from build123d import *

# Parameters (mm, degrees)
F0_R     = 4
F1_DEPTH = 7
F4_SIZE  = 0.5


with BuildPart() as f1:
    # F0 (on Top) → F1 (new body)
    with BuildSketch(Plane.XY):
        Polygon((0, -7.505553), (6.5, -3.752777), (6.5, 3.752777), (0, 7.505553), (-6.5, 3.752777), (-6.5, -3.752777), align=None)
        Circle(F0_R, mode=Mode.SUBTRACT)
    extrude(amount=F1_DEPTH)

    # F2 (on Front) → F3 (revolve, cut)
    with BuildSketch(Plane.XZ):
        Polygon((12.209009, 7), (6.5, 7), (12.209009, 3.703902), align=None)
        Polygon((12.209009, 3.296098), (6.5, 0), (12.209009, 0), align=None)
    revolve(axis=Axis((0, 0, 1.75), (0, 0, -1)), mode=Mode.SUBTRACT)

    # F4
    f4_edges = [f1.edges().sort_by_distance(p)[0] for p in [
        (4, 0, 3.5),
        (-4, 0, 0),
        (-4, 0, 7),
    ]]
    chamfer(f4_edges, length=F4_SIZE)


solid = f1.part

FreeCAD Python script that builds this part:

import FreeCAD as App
import Part
import Sketcher
Q = App.Units.Quantity


def edges_at(feature, points):
    """Names of the edges that pass closest to the given points."""
    edges = feature.Shape.Edges
    near = lambda p: min(range(len(edges)), key=lambda i: edges[i].distToShape(Part.Vertex(*p))[0])
    return sorted({f"Edge{near(p) + 1}" for p in points})


def add_polygon(sketch, points):
    """Adds a closed chain of lines whose ends are joined by coincident constraints."""
    first, n = sketch.GeometryCount, len(points)
    for a, b in zip(points, points[1:] + points[:1]):
        sketch.addGeometry(Part.LineSegment(App.Vector(*a, 0), App.Vector(*b, 0)), False)
    for i in range(n):
        sketch.addConstraint(Sketcher.Constraint("Coincident", first + i, 2, first + (i + 1) % n, 1))

doc = App.newDocument("Part")
body = doc.addObject("PartDesign::Body", "Body")

sketch1 = doc.addObject("Sketcher::SketchObject", "Sketch")
body.addObject(sketch1)
sketch1.AttachmentSupport = (doc.XY_Plane, [""])
sketch1.MapMode = "FlatFace"
add_polygon(sketch1, [(0, -7.5), (6.5, -3.8), (6.5, 3.8), (0, 7.5), (-6.5, 3.8), (-6.5, -3.8)])
sketch1.addGeometry(Part.Circle(App.Vector(0, 0, 0), App.Vector(0, 0, 1), 4), False)
sketch1.addConstraint(Sketcher.Constraint("Vertical", 1))
sketch1.addConstraint(Sketcher.Constraint("Vertical", 4))
sketch1.addConstraint(Sketcher.Constraint("Coincident", 6, 3, -1, 1))
sketch1.addConstraint(Sketcher.Constraint("Symmetric", 0, 2, 3, 2, -1, 1))
sketch1.addConstraint(Sketcher.Constraint("Symmetric", 2, 2, 5, 2, -1, 1))
sketch1.addConstraint(Sketcher.Constraint("PointOnObject", 2, 2, -2))
sketch1.addConstraint(Sketcher.Constraint("Parallel", 2, 5))
sketch1.addConstraint(Sketcher.Constraint("Horizontal", 1, 2, 3, 2))
sketch1.addConstraint(Sketcher.Constraint("Diameter", 6, 8.0))
sketch1.addConstraint(Sketcher.Constraint("Angle", 0, Q("29.999995 deg")))
sketch1.addConstraint(Sketcher.Constraint("DistanceX", 3, 2, 1, 2, 13.0))
sketch1.addConstraint(Sketcher.Constraint("DistanceY", 1, 1, 1, 2, 7.505554))
pad1 = doc.addObject("PartDesign::Pad", "Pad")
body.addObject(pad1)
pad1.Profile = sketch1
pad1.Length = 7

sketch2 = doc.addObject("Sketcher::SketchObject", "Sketch001")
body.addObject(sketch2)
sketch2.AttachmentSupport = (doc.XZ_Plane, [""])
sketch2.MapMode = "FlatFace"
add_polygon(sketch2, [(12.2, 7), (6.5, 7), (12.2, 3.7)])
add_polygon(sketch2, [(12.2, 3.3), (6.5, 0), (12.2, 0)])
sketch2.addConstraint(Sketcher.Constraint("Horizontal", 0))
sketch2.addConstraint(Sketcher.Constraint("Vertical", 2))
sketch2.addConstraint(Sketcher.Constraint("Horizontal", 4))
sketch2.addConstraint(Sketcher.Constraint("Vertical", 5))
sketch2.addConstraint(Sketcher.Constraint("PointOnObject", 3, 2, -1))
sketch2.addConstraint(Sketcher.Constraint("Vertical", 0, 2, 3, 2))
sketch2.addConstraint(Sketcher.Constraint("Vertical", 2, 2, 4, 2))
sketch2.addConstraint(Sketcher.Constraint("Equal", 2, 5))
sketch2.addConstraint(Sketcher.Constraint("Angle", 1, Q("-30.000001 deg")))
sketch2.addConstraint(Sketcher.Constraint("DistanceY", -1, 1, 0, 2, 7.0))
sketch2.addConstraint(Sketcher.Constraint("DistanceX", -1, 1, 0, 2, 6.5))
sketch2.addConstraint(Sketcher.Constraint("DistanceY", 2, 1, 2, 2, 3.296098))
groove = doc.addObject("PartDesign::Groove", "Groove")
body.addObject(groove)
groove.Profile = sketch2
groove.ReferenceAxis = (sketch2, ["V_Axis"])
groove.Angle = 360
doc.recompute()

chamfer = doc.addObject("PartDesign::Chamfer", "Chamfer")
body.addObject(chamfer)
chamfer.Base = (groove, edges_at(groove, [(4, 0, 3.5), (-4, 0, 0), (-4, 0, 7)]))
chamfer.Size = 0.5

doc.recompute()
